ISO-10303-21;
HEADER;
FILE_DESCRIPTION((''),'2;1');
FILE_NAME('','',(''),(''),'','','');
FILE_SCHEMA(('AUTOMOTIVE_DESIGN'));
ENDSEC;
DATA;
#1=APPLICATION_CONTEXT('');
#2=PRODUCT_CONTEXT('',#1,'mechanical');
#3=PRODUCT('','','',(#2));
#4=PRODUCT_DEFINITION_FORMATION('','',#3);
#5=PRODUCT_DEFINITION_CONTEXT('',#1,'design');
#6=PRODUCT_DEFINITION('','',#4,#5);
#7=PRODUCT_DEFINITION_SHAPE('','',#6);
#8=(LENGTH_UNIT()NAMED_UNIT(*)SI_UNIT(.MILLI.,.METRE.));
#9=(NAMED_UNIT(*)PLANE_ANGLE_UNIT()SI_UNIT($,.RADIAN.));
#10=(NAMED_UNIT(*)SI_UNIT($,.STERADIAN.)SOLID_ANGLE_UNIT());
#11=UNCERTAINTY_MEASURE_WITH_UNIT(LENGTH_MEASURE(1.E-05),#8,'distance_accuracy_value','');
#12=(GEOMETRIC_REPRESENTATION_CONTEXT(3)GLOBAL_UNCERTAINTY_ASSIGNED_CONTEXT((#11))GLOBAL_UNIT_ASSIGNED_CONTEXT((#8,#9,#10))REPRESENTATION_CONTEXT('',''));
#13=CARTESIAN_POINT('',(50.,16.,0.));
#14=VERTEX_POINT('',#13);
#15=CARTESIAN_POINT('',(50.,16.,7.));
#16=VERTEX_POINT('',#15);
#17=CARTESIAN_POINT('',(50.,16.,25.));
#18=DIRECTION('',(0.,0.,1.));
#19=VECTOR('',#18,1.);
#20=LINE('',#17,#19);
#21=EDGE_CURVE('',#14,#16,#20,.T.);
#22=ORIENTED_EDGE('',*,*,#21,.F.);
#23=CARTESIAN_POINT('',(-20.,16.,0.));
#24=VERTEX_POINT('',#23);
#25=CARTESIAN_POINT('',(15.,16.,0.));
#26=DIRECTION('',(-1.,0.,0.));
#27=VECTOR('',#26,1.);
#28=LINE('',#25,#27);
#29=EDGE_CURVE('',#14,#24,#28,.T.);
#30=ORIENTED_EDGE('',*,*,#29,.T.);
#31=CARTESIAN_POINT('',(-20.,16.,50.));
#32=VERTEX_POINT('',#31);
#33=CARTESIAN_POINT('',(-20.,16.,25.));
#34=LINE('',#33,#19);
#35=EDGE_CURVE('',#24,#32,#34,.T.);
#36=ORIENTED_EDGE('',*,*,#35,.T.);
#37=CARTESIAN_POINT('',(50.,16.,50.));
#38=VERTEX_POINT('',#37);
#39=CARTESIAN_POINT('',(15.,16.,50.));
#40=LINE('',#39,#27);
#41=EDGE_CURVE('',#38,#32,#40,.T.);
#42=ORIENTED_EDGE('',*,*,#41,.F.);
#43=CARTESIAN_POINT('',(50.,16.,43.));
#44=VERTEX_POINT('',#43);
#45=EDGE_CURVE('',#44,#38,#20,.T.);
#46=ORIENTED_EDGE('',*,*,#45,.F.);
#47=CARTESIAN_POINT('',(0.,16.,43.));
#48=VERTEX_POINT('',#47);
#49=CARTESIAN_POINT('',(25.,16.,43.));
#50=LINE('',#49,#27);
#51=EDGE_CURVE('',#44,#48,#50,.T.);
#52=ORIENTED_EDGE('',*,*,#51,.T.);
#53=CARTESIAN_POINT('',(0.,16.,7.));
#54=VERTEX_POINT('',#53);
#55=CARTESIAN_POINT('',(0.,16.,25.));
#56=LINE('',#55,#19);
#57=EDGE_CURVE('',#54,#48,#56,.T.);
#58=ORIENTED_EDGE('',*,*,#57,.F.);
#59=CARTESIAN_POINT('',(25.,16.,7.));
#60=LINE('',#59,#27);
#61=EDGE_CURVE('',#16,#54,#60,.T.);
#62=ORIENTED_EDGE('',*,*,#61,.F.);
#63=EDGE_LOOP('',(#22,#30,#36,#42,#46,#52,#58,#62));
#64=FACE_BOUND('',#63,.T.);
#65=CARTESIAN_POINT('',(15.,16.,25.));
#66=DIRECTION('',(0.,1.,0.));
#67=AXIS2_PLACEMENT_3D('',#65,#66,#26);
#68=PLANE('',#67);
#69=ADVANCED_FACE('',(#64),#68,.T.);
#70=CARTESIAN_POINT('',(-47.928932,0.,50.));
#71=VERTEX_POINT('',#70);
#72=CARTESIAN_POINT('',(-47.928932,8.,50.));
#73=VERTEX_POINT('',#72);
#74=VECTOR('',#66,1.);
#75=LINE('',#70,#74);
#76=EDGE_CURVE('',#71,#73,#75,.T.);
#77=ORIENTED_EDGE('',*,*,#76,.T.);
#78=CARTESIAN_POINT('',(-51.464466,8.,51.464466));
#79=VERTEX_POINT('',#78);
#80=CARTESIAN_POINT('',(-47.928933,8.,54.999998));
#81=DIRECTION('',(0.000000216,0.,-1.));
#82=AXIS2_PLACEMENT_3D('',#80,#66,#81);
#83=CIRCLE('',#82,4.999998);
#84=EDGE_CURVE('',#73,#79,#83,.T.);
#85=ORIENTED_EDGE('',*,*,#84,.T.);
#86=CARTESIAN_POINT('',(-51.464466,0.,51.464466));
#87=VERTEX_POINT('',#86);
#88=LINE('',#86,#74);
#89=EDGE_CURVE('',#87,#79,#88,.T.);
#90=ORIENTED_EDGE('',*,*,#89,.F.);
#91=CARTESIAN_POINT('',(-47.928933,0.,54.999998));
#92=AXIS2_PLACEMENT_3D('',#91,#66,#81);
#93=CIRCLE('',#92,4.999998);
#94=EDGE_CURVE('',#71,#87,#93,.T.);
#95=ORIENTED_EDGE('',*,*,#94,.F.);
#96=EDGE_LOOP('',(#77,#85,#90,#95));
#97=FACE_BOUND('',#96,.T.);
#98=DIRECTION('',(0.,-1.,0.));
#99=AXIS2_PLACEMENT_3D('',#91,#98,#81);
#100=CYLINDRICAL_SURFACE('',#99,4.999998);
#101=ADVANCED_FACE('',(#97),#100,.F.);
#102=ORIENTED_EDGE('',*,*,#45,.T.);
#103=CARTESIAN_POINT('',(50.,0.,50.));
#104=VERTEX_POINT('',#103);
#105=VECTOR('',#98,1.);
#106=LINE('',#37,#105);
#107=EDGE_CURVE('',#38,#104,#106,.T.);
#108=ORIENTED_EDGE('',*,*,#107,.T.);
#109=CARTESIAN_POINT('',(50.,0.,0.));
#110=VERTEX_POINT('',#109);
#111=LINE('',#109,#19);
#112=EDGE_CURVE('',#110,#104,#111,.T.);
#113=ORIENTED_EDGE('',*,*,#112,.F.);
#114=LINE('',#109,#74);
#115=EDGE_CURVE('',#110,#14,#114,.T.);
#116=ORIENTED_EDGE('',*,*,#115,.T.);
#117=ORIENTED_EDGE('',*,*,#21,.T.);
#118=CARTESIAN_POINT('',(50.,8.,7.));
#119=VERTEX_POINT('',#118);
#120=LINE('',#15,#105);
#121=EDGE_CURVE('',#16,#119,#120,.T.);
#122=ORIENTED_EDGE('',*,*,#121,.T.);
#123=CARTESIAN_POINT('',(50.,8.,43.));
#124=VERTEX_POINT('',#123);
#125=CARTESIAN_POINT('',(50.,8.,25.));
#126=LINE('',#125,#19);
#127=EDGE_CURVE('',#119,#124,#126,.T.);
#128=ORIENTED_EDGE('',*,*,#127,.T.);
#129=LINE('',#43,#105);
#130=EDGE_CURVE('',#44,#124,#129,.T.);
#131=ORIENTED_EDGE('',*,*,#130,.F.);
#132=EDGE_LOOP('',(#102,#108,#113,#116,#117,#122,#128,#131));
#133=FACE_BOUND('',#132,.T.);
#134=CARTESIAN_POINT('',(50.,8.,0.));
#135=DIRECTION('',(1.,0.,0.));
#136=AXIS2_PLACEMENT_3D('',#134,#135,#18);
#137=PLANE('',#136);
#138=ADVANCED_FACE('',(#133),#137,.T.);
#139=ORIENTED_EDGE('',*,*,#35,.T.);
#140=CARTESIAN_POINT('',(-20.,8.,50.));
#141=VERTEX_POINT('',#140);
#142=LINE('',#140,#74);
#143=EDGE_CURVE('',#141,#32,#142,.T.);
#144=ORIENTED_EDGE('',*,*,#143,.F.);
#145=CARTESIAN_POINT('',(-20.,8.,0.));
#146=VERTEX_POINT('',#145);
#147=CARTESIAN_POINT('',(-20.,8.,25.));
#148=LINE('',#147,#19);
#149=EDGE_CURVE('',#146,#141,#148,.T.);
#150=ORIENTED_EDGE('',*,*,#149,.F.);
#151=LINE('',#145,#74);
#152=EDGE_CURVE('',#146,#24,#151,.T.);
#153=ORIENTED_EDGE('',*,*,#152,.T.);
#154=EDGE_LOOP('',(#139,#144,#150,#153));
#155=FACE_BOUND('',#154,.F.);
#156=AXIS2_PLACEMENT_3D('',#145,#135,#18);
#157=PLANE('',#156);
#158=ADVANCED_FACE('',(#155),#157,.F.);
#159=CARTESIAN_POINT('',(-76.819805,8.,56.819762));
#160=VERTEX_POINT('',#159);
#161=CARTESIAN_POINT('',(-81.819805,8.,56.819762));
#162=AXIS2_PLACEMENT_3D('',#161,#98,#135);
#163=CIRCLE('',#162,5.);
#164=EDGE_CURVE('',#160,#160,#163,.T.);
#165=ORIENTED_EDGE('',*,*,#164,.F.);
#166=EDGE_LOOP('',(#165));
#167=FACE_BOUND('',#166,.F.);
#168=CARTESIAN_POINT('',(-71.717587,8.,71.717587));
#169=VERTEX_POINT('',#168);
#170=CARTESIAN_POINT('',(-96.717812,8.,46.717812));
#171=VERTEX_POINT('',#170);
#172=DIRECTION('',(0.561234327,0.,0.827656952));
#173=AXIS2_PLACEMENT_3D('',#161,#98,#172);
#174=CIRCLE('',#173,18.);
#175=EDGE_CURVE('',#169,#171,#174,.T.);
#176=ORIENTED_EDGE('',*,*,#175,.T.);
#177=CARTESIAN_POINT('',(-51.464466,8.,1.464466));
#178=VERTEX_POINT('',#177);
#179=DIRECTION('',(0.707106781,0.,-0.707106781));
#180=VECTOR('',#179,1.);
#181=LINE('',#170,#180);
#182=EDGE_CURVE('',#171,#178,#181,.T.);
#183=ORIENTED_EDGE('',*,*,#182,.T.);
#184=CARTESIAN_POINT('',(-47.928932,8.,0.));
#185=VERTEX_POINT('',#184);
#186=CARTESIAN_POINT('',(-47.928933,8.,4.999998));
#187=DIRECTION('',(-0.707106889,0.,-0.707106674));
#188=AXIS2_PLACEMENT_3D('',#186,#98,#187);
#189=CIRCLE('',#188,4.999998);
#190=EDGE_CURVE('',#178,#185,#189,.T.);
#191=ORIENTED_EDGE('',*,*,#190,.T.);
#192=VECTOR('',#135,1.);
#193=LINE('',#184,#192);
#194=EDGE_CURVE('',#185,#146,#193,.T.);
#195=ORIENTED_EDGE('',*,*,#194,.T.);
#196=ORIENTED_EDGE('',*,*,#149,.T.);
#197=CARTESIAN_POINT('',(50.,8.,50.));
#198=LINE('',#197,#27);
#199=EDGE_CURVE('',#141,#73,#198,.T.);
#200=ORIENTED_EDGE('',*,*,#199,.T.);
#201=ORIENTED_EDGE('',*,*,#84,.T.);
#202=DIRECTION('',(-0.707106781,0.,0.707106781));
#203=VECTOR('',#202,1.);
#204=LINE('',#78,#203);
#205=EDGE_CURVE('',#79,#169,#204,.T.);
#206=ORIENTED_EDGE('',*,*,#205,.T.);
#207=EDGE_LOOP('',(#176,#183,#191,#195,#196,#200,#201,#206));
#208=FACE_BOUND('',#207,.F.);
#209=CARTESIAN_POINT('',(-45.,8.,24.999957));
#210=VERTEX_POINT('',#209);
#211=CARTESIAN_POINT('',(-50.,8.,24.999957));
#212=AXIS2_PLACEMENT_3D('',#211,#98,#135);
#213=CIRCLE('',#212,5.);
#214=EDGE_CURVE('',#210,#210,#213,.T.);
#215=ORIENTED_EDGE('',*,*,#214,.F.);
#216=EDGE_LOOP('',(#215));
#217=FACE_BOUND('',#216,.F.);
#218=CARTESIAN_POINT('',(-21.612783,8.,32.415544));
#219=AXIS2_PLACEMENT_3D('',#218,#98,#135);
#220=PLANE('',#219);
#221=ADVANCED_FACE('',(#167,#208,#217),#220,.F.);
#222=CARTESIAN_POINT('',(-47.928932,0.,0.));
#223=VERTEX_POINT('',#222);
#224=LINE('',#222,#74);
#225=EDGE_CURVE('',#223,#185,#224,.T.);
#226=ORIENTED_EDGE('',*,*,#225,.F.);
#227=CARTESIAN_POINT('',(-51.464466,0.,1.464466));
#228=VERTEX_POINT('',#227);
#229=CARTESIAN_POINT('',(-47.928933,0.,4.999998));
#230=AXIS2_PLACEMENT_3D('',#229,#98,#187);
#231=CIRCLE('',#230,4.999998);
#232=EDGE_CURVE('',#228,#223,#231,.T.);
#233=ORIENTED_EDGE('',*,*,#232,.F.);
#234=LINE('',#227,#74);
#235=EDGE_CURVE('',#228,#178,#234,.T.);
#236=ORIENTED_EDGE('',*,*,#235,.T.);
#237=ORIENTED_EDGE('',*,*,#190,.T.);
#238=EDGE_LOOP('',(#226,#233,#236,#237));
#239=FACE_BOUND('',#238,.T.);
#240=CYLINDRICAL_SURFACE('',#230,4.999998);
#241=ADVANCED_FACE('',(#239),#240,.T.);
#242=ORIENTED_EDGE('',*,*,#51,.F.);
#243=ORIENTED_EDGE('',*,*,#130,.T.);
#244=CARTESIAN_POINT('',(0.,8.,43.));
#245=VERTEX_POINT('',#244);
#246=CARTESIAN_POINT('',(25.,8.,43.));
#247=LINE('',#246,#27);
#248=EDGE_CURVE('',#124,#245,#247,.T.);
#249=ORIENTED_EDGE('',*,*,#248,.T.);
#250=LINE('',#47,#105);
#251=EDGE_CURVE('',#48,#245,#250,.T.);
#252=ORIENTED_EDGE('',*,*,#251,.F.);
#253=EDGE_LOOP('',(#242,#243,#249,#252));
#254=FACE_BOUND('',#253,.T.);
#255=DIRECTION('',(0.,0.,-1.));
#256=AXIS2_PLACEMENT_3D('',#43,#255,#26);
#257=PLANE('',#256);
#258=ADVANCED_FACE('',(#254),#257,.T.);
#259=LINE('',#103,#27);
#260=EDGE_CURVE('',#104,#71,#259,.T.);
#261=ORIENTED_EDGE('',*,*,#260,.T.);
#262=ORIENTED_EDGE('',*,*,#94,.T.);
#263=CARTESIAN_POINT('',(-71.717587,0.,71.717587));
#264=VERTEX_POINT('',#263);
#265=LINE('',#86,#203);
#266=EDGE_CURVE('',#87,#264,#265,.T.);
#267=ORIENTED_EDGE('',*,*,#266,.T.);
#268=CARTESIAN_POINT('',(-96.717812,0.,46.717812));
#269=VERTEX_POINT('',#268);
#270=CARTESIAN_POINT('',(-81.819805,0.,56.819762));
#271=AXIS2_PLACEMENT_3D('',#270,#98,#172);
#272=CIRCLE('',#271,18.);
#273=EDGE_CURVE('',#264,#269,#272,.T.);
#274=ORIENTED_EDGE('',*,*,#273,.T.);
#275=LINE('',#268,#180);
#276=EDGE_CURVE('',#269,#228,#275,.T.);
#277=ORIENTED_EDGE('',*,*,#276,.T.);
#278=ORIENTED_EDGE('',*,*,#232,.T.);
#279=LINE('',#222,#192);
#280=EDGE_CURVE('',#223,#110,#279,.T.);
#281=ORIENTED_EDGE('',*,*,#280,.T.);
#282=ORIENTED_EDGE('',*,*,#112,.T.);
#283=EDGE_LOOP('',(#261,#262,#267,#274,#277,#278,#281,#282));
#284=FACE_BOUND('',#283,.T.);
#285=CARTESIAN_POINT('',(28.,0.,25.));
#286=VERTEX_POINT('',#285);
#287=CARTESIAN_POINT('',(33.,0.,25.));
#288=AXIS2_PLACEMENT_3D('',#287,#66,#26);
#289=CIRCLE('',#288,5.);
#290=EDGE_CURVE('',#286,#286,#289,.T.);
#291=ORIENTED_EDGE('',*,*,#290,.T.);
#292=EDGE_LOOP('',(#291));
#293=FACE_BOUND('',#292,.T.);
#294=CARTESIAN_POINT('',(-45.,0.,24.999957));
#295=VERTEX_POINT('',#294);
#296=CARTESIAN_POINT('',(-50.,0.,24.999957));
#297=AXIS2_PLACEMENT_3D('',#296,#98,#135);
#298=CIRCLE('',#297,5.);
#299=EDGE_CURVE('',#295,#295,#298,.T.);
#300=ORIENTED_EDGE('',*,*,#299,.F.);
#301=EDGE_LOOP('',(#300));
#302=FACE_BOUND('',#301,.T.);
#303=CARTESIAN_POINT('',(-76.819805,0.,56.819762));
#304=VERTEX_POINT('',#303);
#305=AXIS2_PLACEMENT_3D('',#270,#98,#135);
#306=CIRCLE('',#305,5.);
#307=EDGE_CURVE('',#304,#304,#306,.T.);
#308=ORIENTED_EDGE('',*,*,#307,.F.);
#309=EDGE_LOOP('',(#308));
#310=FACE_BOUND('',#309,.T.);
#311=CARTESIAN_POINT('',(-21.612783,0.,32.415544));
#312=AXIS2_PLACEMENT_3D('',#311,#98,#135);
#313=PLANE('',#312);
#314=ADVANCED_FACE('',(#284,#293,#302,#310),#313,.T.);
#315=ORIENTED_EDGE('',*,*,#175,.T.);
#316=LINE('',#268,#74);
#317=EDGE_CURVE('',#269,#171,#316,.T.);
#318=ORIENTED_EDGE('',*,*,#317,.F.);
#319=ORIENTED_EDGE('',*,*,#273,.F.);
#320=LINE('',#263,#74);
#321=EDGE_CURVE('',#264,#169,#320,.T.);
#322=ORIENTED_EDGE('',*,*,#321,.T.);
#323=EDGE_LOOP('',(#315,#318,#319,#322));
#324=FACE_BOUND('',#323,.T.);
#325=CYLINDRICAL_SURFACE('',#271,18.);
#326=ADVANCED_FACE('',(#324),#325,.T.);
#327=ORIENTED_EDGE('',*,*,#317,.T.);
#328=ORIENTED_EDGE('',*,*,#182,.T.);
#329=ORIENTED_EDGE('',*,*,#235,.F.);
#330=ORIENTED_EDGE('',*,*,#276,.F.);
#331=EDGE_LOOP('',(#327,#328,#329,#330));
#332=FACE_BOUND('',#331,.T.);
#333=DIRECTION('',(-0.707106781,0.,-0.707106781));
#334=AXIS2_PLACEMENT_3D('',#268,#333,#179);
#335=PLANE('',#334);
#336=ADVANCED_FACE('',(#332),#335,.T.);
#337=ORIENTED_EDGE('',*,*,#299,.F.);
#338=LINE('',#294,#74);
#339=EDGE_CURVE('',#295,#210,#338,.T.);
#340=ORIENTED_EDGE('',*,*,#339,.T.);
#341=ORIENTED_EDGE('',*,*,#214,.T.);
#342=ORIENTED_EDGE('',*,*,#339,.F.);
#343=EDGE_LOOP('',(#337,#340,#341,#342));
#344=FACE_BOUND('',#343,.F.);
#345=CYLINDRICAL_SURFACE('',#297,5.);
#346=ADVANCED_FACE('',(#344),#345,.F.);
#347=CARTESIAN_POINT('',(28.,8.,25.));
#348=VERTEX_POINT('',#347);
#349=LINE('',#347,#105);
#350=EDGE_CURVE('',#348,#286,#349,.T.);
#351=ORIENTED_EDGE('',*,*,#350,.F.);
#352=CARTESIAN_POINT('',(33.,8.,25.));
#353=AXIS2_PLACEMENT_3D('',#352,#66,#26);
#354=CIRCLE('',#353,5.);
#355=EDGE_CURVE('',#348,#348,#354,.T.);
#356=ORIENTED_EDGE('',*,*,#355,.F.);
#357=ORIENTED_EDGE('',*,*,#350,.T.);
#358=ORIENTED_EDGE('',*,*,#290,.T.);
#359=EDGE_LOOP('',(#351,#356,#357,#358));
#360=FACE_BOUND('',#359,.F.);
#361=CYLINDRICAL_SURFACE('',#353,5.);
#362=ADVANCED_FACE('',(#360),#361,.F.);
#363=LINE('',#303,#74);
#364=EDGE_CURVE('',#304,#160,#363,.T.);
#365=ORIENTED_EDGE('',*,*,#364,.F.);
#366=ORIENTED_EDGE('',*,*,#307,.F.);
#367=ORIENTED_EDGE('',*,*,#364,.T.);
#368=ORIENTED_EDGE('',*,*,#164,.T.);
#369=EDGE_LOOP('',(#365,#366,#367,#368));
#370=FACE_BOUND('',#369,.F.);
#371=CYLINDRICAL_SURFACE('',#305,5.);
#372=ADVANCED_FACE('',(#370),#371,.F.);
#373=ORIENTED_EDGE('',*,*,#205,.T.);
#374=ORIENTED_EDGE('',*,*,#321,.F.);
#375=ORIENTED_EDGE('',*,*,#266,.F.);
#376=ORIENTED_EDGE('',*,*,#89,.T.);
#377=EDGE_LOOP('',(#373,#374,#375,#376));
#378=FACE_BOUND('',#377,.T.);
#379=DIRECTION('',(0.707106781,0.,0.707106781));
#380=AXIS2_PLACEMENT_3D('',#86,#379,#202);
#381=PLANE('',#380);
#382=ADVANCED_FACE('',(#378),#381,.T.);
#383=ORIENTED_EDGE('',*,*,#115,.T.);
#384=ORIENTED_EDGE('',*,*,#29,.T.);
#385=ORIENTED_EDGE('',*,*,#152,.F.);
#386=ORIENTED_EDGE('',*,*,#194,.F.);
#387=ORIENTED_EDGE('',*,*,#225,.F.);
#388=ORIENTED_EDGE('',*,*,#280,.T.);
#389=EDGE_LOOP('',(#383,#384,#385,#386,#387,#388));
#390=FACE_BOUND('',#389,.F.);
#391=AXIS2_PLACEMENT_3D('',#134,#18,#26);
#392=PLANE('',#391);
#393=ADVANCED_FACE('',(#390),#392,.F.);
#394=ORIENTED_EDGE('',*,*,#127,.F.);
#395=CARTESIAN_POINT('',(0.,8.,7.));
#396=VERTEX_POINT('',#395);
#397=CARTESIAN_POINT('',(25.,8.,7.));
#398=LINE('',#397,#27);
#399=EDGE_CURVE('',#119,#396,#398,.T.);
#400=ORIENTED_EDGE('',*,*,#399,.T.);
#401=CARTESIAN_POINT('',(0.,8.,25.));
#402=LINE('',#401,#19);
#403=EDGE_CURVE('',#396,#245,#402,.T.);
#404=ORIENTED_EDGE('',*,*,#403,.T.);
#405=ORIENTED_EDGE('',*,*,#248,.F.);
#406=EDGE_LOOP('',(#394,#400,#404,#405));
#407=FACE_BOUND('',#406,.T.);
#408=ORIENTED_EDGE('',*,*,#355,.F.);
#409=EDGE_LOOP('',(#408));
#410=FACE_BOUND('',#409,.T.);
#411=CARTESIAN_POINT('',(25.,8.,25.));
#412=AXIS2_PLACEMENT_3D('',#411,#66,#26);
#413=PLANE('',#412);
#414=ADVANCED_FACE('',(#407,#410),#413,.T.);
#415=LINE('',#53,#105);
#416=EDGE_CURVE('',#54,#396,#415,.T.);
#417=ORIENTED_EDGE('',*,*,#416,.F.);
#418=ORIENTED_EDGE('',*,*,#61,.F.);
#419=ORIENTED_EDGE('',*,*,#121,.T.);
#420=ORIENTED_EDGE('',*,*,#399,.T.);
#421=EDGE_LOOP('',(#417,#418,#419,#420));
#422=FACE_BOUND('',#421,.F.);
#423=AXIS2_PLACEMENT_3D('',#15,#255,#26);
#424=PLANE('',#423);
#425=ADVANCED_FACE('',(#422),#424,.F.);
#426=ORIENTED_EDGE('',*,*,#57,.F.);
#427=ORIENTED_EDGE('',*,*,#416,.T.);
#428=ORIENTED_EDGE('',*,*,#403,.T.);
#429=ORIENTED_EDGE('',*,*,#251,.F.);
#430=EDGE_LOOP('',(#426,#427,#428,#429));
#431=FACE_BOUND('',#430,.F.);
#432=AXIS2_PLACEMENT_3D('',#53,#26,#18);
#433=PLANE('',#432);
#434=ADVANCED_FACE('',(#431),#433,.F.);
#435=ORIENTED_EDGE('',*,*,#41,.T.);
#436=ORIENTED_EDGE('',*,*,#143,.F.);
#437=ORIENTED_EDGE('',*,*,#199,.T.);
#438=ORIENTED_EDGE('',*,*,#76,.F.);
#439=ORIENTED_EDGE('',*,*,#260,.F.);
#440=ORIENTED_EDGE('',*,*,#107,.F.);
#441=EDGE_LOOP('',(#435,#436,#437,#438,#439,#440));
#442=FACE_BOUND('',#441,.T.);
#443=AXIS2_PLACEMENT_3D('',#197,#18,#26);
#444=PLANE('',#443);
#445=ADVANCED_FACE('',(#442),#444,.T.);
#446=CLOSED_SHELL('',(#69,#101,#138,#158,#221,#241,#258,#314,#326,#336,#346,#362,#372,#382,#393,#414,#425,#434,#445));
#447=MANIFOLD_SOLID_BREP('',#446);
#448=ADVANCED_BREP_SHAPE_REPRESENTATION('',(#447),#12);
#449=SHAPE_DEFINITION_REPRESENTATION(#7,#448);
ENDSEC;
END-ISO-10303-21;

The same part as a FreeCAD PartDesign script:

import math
import FreeCAD as App
import Part
import Sketcher

V = App.Vector
Q = App.Units.Quantity


def add_polygon(sketch, points):
    """Adds a closed chain of lines whose ends are joined by coincident constraints."""
    first, n = sketch.GeometryCount, len(points)
    for a, b in zip(points, points[1:] + points[:1]):
        sketch.addGeometry(Part.LineSegment(App.Vector(*a, 0), App.Vector(*b, 0)), False)
    for i in range(n):
        sketch.addConstraint(Sketcher.Constraint("Coincident", first + i, 2, first + (i + 1) % n, 1))

doc = App.newDocument("Part")
body = doc.addObject("PartDesign::Body", "Body")

sketch1 = doc.addObject("Sketcher::SketchObject", "Sketch")
body.addObject(sketch1)
sketch1.AttachmentSupport = (doc.XZ_Plane, [""])
sketch1.MapMode = "FlatFace"
sketch1.addGeometry([
    Part.ArcOfCircle(Part.Circle(V(-47.9, 5, 0), V(0, 0, 1), 5), math.radians(-135), math.radians(-90)),
    Part.LineSegment(V(-47.9, 0, 0), V(50, 0, 0)),
    Part.LineSegment(V(50, 0, 0), V(50, 50, 0)),
    Part.LineSegment(V(50, 50, 0), V(-47.9, 50, 0)),
    Part.ArcOfCircle(Part.Circle(V(-47.9, 55, 0), V(0, 0, 1), 5), math.radians(-135), math.radians(-90)),
    Part.LineSegment(V(-51.5, 51.5, 0), V(-71.7, 71.7, 0)),
    Part.ArcOfCircle(Part.Circle(V(-81.8, 56.8, 0), V(0, 0, 1), 18), math.radians(56), math.radians(214)),
    Part.LineSegment(V(-96.7, 46.7, 0), V(-51.5, 1.5, 0)),
    Part.Circle(V(-50, 25, 0), V(0, 0, 1), 5),
    Part.Circle(V(-81.8, 56.8, 0), V(0, 0, 1), 5),
], False)
sketch1.addConstraint([
    Sketcher.Constraint("Tangent", 0, 2, 1, 1),
    Sketcher.Constraint("Coincident", 1, 2, 2, 1),
    Sketcher.Constraint("Coincident", 2, 2, 3, 1),
    Sketcher.Constraint("Tangent", 3, 2, 4, 2),
    Sketcher.Constraint("Tangent", 4, 1, 5, 1),
    Sketcher.Constraint("Coincident", 5, 2, 6, 1),
    Sketcher.Constraint("Coincident", 6, 2, 7, 1),
    Sketcher.Constraint("Tangent", 7, 2, 0, 1),
    Sketcher.Constraint("Horizontal", 1),
    Sketcher.Constraint("Vertical", 2),
    Sketcher.Constraint("Horizontal", 3),
    Sketcher.Constraint("Coincident", 9, 3, 6, 3),
    Sketcher.Constraint("Equal", 0, 4),
    Sketcher.Constraint("Equal", 8, 9),
    Sketcher.Constraint("PointOnObject", 0, 2, -1),
    Sketcher.Constraint("Parallel", 5, 7),
    Sketcher.Constraint("Vertical", 0, 3, 4, 3),
    Sketcher.Constraint("Diameter", 8, 10.0),
    Sketcher.Constraint("Radius", 6, 18.0),
    Sketcher.Constraint("DistanceY", 2, 1, 2, 2, 50.0),
    Sketcher.Constraint("Angle", 5, Q("135 deg")),
    Sketcher.Constraint("DistanceX", 8, 3, -1, 1, 50.0),
    Sketcher.Constraint("DistanceX", -1, 1, 1, 2, 50.0),
    Sketcher.Constraint("Radius", 0, 4.999998),
    Sketcher.Constraint("Distance", 5, 28.642238),
    Sketcher.Constraint("DistanceX", 1, 1, 1, 2, 97.928932),
    Sketcher.Constraint("DistanceY", -1, 1, 6, 3, 56.819762),
    Sketcher.Constraint("DistanceY", 0, 3, 8, 3, 19.999959),
])
pad1 = doc.addObject("PartDesign::Pad", "Pad")
body.addObject(pad1)
pad1.Profile = sketch1
pad1.Length = 8
pad1.Reversed = True

sketch2 = doc.addObject("Sketcher::SketchObject", "Sketch001")
body.addObject(sketch2)
sketch2.AttachmentSupport = (doc.XZ_Plane, [""])
sketch2.MapMode = "FlatFace"
sketch2.AttachmentOffset = App.Placement(V(0, 0, -8), App.Rotation())
add_polygon(sketch2, [(50, 50), (50, 0), (-20, 0), (-20, 50)])
sketch2.addConstraint([
    Sketcher.Constraint("Vertical", 0),
    Sketcher.Constraint("Horizontal", 1),
    Sketcher.Constraint("Vertical", 2),
    Sketcher.Constraint("Horizontal", 3),
    Sketcher.Constraint("PointOnObject", 0, 2, -1),
    Sketcher.Constraint("DistanceX", 1, 2, 1, 1, 70.0),
    Sketcher.Constraint("DistanceY", 0, 2, 0, 1, 50.0),
    Sketcher.Constraint("DistanceX", -1, 1, 0, 2, 50.0),
])
pad2 = doc.addObject("PartDesign::Pad", "Pad001")
body.addObject(pad2)
pad2.Profile = sketch2
pad2.Length = 8
pad2.Reversed = True

sketch3 = doc.addObject("Sketcher::SketchObject", "Sketch002")
body.addObject(sketch3)
sketch3.AttachmentSupport = (doc.XZ_Plane, [""])
sketch3.MapMode = "FlatFace"
sketch3.AttachmentOffset = App.Placement(V(0, 0, -16), App.Rotation())
add_polygon(sketch3, [(50, 43), (50, 7), (0, 7), (0, 43)])
sketch3.addConstraint([
    Sketcher.Constraint("Vertical", 0),
    Sketcher.Constraint("Horizontal", 1),
    Sketcher.Constraint("Vertical", 2),
    Sketcher.Constraint("Horizontal", 3),
    Sketcher.Constraint("PointOnObject", 1, 2, -2),
    Sketcher.Constraint("DistanceX", 1, 2, 1, 1, 50.0),
    Sketcher.Constraint("DistanceY", 0, 2, 0, 1, 36.0),
    Sketcher.Constraint("DistanceY", -1, 1, 0, 2, 7.0),
])
pocket1 = doc.addObject("PartDesign::Pocket", "Pocket")
body.addObject(pocket1)
pocket1.Profile = sketch3
pocket1.Length = 8
pocket1.Reversed = True

sketch4 = doc.addObject("Sketcher::SketchObject", "Sketch003")
body.addObject(sketch4)
sketch4.AttachmentSupport = (doc.XZ_Plane, [""])
sketch4.MapMode = "FlatFace"
sketch4.AttachmentOffset = App.Placement(V(0, 0, -8), App.Rotation())
sketch4.addGeometry(Part.Circle(V(33, 25, 0), V(0, 0, 1), 5), False)
sketch4.addConstraint([
    Sketcher.Constraint("Diameter", 0, 10.0),
    Sketcher.Constraint("DistanceX", -1, 1, 0, 3, 33.0),
    Sketcher.Constraint("DistanceY", -1, 1, 0, 3, 25.0),
])
pocket2 = doc.addObject("PartDesign::Pocket", "Pocket001")
body.addObject(pocket2)
pocket2.Profile = sketch4
pocket2.Length = 25
pocket2.Reversed = True

doc.recompute()
